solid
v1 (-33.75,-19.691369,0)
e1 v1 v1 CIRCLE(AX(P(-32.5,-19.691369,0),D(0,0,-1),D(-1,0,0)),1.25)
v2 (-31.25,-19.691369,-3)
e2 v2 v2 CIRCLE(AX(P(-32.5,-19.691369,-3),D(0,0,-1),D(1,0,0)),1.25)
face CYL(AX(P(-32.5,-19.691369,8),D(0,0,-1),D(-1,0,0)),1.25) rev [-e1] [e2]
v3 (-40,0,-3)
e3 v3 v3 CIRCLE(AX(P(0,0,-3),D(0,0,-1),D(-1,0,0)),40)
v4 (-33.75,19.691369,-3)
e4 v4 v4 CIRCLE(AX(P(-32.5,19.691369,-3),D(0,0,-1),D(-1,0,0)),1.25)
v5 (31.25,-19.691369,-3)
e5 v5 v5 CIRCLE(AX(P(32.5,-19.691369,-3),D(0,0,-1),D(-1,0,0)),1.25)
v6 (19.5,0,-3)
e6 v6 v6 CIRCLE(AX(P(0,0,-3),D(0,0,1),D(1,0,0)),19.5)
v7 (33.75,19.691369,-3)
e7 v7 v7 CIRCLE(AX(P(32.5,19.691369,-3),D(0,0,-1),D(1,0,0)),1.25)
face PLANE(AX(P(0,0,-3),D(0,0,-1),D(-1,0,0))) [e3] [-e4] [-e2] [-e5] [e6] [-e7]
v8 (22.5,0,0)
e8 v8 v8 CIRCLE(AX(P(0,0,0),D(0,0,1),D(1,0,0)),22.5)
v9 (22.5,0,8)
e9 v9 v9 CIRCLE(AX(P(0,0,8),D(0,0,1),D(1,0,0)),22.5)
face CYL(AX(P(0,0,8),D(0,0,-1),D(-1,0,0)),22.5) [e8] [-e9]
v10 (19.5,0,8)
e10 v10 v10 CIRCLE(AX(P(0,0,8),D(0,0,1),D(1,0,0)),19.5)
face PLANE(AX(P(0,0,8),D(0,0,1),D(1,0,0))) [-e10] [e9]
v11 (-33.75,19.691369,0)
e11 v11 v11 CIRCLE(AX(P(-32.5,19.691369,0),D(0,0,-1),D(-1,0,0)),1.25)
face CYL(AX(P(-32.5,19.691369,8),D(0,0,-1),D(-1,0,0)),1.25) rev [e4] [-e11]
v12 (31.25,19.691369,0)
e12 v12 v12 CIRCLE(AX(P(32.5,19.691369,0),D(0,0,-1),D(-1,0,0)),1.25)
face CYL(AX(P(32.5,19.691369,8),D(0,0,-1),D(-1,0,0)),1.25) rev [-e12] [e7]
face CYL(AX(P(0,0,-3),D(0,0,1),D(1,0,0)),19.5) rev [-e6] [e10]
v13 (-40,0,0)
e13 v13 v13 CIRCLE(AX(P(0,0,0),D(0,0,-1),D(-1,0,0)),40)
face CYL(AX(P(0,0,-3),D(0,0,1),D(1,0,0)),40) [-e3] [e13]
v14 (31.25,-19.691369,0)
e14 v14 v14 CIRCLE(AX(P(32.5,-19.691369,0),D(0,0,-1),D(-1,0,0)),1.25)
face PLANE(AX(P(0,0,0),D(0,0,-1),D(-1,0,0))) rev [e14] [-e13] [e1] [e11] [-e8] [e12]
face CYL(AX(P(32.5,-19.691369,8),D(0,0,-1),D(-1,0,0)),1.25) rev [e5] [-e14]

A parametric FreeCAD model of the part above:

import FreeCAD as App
import Part
import Sketcher
from FreeCAD import Vector

doc = App.newDocument("Part")
body = doc.addObject("PartDesign::Body", "Body")

sketch1 = body.newObject("Sketcher::SketchObject", "Sketch")
sketch1.AttachmentSupport = (doc.getObject("XY_Plane"), [""])
sketch1.MapMode = "FlatFace"
sketch1.addGeometry(Part.Circle(Vector(0, 0, 0), Vector(0, 0, 1), 22.5), False)
sketch1.addConstraint([
    Sketcher.Constraint("Coincident", 0, 3, -1, 1),
    Sketcher.Constraint("Diameter", 0, 45.0),
])
pad1 = body.newObject("PartDesign::Pad", "Pad")
pad1.Profile = sketch1
pad1.Length = 8

sketch2 = body.newObject("Sketcher::SketchObject", "Sketch001")
sketch2.AttachmentSupport = (doc.getObject("XY_Plane"), [""])
sketch2.MapMode = "FlatFace"
sketch2.addGeometry(Part.Circle(Vector(0, 0, 0), Vector(0, 0, 1), 40), False)
sketch2.addConstraint([
    Sketcher.Constraint("Coincident", 0, 3, -1, 1),
    Sketcher.Constraint("Diameter", 0, 80.0),
])
pad2 = body.newObject("PartDesign::Pad", "Pad001")
pad2.Profile = sketch2
pad2.Length = 3
pad2.Reversed = True

sketch3 = body.newObject("Sketcher::SketchObject", "Sketch002")
sketch3.AttachmentSupport = (doc.getObject("XY_Plane"), [""])
sketch3.MapMode = "FlatFace"
sketch3.AttachmentOffset = App.Placement(Vector(0, 0, 8), App.Rotation())
sketch3.addGeometry(Part.Circle(Vector(0, 0, 0), Vector(0, 0, 1), 19.5), False)
sketch3.addConstraint([
    Sketcher.Constraint("Coincident", 0, 3, -1, 1),
    Sketcher.Constraint("Diameter", 0, 39.0),
])
pocket1 = body.newObject("PartDesign::Pocket", "Pocket")
pocket1.Profile = sketch3
pocket1.Type = "ThroughAll"

sketch4 = body.newObject("Sketcher::SketchObject", "Sketch003")
sketch4.AttachmentSupport = (doc.getObject("XY_Plane"), [""])
sketch4.MapMode = "FlatFace"
sketch4.AttachmentOffset = App.Placement(Vector(0, 0, -3), App.Rotation())
sketch4.addGeometry([
    Part.Circle(Vector(-32.5, 19.691369, 0), Vector(0, 0, 1), 1.25),
    Part.Circle(Vector(32.5, 19.691369, 0), Vector(0, 0, 1), 1.25),
    Part.Circle(Vector(-32.5, -19.691369, 0), Vector(0, 0, 1), 1.25),
    Part.Circle(Vector(32.5, -19.691369, 0), Vector(0, 0, 1), 1.25),
], False)
sketch4.addConstraint([
    Sketcher.Constraint("Equal", 0, 1),
    Sketcher.Constraint("Equal", 1, 2),
    Sketcher.Constraint("Equal", 2, 3),
    Sketcher.Constraint("Symmetric", 1, 3, 2, 3, -1, 1),
    Sketcher.Constraint("Symmetric", 0, 3, 3, 3, -1, 1),
    Sketcher.Constraint("Symmetric", 0, 3, 1, 3, -2),
    Sketcher.Constraint("Diameter", 0, 2.5),
    Sketcher.Constraint("DistanceX", 0, 3, 1, 3, 65.0),
    Sketcher.Constraint("DistanceY", -1, 1, 0, 3, 19.691369),
])
pocket2 = body.newObject("PartDesign::Pocket", "Pocket001")
pocket2.Profile = sketch4
pocket2.Type = "ThroughAll"
pocket2.Reversed = True

doc.recompute()
